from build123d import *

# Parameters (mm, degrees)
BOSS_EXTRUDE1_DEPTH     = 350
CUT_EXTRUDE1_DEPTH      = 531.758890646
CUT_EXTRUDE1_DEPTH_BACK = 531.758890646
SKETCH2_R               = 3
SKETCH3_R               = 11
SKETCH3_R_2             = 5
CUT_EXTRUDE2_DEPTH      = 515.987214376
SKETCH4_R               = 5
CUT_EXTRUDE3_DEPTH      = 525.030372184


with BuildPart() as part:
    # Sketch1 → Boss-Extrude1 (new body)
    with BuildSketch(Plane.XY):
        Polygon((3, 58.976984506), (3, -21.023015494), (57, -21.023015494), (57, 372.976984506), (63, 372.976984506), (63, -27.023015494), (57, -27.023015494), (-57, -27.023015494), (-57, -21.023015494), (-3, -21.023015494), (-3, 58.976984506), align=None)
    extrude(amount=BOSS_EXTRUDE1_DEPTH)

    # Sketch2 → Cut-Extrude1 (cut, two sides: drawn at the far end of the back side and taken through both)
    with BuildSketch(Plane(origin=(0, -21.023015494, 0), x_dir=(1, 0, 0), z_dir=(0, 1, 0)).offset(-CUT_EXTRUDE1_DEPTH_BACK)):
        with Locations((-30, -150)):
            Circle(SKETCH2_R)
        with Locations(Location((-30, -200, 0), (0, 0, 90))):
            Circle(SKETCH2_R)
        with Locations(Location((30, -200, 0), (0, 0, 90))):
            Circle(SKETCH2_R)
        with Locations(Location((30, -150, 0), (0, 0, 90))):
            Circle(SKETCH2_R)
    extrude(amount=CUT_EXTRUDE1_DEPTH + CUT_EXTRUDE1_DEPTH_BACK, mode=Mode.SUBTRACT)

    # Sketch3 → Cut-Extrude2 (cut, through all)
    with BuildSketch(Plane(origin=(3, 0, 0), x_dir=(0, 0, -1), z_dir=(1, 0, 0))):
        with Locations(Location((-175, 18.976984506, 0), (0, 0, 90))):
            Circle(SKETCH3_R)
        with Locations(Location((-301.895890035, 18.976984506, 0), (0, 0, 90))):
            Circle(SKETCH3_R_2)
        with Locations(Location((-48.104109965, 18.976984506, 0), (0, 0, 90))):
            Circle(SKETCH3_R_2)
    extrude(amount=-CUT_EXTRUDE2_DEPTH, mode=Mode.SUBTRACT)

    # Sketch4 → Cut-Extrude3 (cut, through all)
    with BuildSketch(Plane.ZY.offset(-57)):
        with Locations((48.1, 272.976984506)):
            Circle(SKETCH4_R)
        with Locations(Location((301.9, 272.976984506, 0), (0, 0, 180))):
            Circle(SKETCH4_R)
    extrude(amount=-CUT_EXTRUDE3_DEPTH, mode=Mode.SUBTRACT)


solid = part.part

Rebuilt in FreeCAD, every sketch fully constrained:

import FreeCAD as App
import Part
import Sketcher


def add_polygon(sketch, points):
    """Adds a closed chain of lines whose ends are joined by coincident constraints."""
    first, n = sketch.GeometryCount, len(points)
    for a, b in zip(points, points[1:] + points[:1]):
        sketch.addGeometry(Part.LineSegment(App.Vector(*a, 0), App.Vector(*b, 0)), False)
    for i in range(n):
        sketch.addConstraint(Sketcher.Constraint("Coincident", first + i, 2, first + (i + 1) % n, 1))

doc = App.newDocument("Part")
params = doc.addObject("Spreadsheet::Sheet", "Params")
for row, (alias, value) in enumerate([
    ("sketch1_width", "6 mm"),
    ("sketch1_width2", "54 mm"),
    ("sketch1_height", "80 mm"),
    ("sketch1_height2", "400 mm"),
    ("pad1_length", "350 mm"),
    ("sketch2_diameter", "6 mm"),
    ("sketch3_diameter", "22 mm"),
    ("sketch3_diameter2", "10 mm"),
    ("sketch4_diameter", "10 mm"),
], start=1):
    params.set(f"A{row}", alias)
    params.set(f"B{row}", "=" + value)
    params.setAlias(f"B{row}", alias)

body = doc.addObject("PartDesign::Body", "Body")

# Sketch on XY plane
sketch1 = body.newObject("Sketcher::SketchObject", "Sketch")
sketch1.AttachmentSupport = (doc.getObject("XY_Plane"), [""])
sketch1.MapMode = "FlatFace"
add_polygon(sketch1, [(3, -21), (3, 59), (-3, 59), (-3, -21), (-57, -21), (-57, -27), (63, -27), (63, 373), (57, 373), (57, -21)])  # lines 0-9
sketch1.addConstraint([
    Sketcher.Constraint("Vertical", 0),
    Sketcher.Constraint("Horizontal", 1),
    Sketcher.Constraint("Vertical", 2),
    Sketcher.Constraint("Horizontal", 3),
    Sketcher.Constraint("Vertical", 4),
    Sketcher.Constraint("Horizontal", 5),
    Sketcher.Constraint("Vertical", 6),
    Sketcher.Constraint("Horizontal", 7),
    Sketcher.Constraint("Vertical", 8),
    Sketcher.Constraint("Horizontal", 9),
    Sketcher.Constraint("Symmetric", 3, 2, 8, 2, -2),
    Sketcher.Constraint("Equal", 1, 7),
    Sketcher.Constraint("Equal", 3, 9),
    Sketcher.Constraint("Equal", 7, 4),
    Sketcher.Constraint("DistanceX", 1, 2, 1, 1, 6.0),
    Sketcher.Constraint("DistanceX", 3, 2, 3, 1, 54.0),
    Sketcher.Constraint("DistanceY", 0, 1, 0, 2, 80.0),
    Sketcher.Constraint("DistanceY", 6, 1, 6, 2, 400.0),
    Sketcher.Constraint("DistanceY", -1, 1, 0, 2, 58.976985),
])
sketch1.setExpression("Constraints[24]", "Params.sketch1_width")
sketch1.setExpression("Constraints[25]", "Params.sketch1_width2")
sketch1.setExpression("Constraints[26]", "Params.sketch1_height")
sketch1.setExpression("Constraints[27]", "Params.sketch1_height2")
pad1 = body.newObject("PartDesign::Pad", "Pad")
pad1.Profile = sketch1
pad1.setExpression("Length", "Params.pad1_length")

# Sketch on XZ plane
sketch2 = body.newObject("Sketcher::SketchObject", "Sketch001")
sketch2.AttachmentSupport = (doc.getObject("XZ_Plane"), [""])
sketch2.MapMode = "FlatFace"
sketch2.AttachmentOffset = App.Placement(App.Vector(0, 0, 21.023015), App.Rotation())
sketch2.addGeometry([
    Part.Circle(App.Vector(-30, 150, 0), App.Vector(0, 0, 1), 3),
    Part.Circle(App.Vector(-30, 200, 0), App.Vector(0, 0, 1), 3),
    Part.Circle(App.Vector(30, 200, 0), App.Vector(0, 0, 1), 3),
    Part.Circle(App.Vector(30, 150, 0), App.Vector(0, 0, 1), 3),
], False)
sketch2.addConstraint([
    Sketcher.Constraint("Equal", 0, 1),
    Sketcher.Constraint("Equal", 1, 2),
    Sketcher.Constraint("Equal", 2, 3),
    Sketcher.Constraint("Symmetric", 1, 3, 2, 3, -2),
    Sketcher.Constraint("Symmetric", 0, 3, 3, 3, -2),
    Sketcher.Constraint("Vertical", 0, 3, 1, 3),
    Sketcher.Constraint("Diameter", 0, 6.0),
    Sketcher.Constraint("DistanceX", 0, 3, -1, 1, 30.0),
    Sketcher.Constraint("DistanceY", -1, 1, 0, 3, 150.0),
    Sketcher.Constraint("DistanceY", -1, 1, 1, 3, 200.0),
])
sketch2.setExpression("Constraints[6]", "Params.sketch2_diameter")
pocket1 = body.newObject("PartDesign::Pocket", "Pocket")
pocket1.Profile = sketch2
pocket1.Type = "ThroughAll"
pocket1.Midplane = True

# Sketch on YZ plane
sketch3 = body.newObject("Sketcher::SketchObject", "Sketch002")
sketch3.AttachmentSupport = (doc.getObject("YZ_Plane"), [""])
sketch3.MapMode = "FlatFace"
sketch3.AttachmentOffset = App.Placement(App.Vector(0, 0, 3), App.Rotation())
sketch3.addGeometry([
    Part.Circle(App.Vector(19, 175, 0), App.Vector(0, 0, 1), 11),
    Part.Circle(App.Vector(19, 302, 0), App.Vector(0, 0, 1), 5),
    Part.Circle(App.Vector(19, 48, 0), App.Vector(0, 0, 1), 5),
], False)
sketch3.addConstraint([
    Sketcher.Constraint("Equal", 1, 2),
    Sketcher.Constraint("Vertical", 0, 3, 1, 3),
    Sketcher.Constraint("Vertical", 1, 3, 2, 3),
    Sketcher.Constraint("Diameter", 0, 22.0),
    Sketcher.Constraint("Diameter", 1, 10.0),
    Sketcher.Constraint("DistanceY", -1, 1, 0, 3, 175.0),
    Sketcher.Constraint("DistanceY", -1, 1, 1, 3, 301.89589),
    Sketcher.Constraint("DistanceY", -1, 1, 2, 3, 48.10411),
    Sketcher.Constraint("DistanceX", -1, 1, 0, 3, 18.976985),
])
sketch3.setExpression("Constraints[3]", "Params.sketch3_diameter")
sketch3.setExpression("Constraints[4]", "Params.sketch3_diameter2")
pocket2 = body.newObject("PartDesign::Pocket", "Pocket001")
pocket2.Profile = sketch3
pocket2.Type = "ThroughAll"

# Sketch on YZ plane
sketch4 = body.newObject("Sketcher::SketchObject", "Sketch003")
sketch4.AttachmentSupport = (doc.getObject("YZ_Plane"), [""])
sketch4.MapMode = "FlatFace"
sketch4.AttachmentOffset = App.Placement(App.Vector(0, 0, 57), App.Rotation())
sketch4.addGeometry([
    Part.Circle(App.Vector(273, 48, 0), App.Vector(0, 0, 1), 5),
    Part.Circle(App.Vector(273, 302, 0), App.Vector(0, 0, 1), 5),
], False)
sketch4.addConstraint([
    Sketcher.Constraint("Equal", 0, 1),
    Sketcher.Constraint("Vertical", 0, 3, 1, 3),
    Sketcher.Constraint("Diameter", 0, 10.0),
    Sketcher.Constraint("DistanceY", -1, 1, 0, 3, 48.1),
    Sketcher.Constraint("DistanceY", -1, 1, 1, 3, 301.9),
    Sketcher.Constraint("DistanceX", -1, 1, 0, 3, 272.976985),
])
sketch4.setExpression("Constraints[2]", "Params.sketch4_diameter")
pocket3 = body.newObject("PartDesign::Pocket", "Pocket002")
pocket3.Profile = sketch4
pocket3.Type = "ThroughAll"
pocket3.Reversed = True

doc.recompute()
